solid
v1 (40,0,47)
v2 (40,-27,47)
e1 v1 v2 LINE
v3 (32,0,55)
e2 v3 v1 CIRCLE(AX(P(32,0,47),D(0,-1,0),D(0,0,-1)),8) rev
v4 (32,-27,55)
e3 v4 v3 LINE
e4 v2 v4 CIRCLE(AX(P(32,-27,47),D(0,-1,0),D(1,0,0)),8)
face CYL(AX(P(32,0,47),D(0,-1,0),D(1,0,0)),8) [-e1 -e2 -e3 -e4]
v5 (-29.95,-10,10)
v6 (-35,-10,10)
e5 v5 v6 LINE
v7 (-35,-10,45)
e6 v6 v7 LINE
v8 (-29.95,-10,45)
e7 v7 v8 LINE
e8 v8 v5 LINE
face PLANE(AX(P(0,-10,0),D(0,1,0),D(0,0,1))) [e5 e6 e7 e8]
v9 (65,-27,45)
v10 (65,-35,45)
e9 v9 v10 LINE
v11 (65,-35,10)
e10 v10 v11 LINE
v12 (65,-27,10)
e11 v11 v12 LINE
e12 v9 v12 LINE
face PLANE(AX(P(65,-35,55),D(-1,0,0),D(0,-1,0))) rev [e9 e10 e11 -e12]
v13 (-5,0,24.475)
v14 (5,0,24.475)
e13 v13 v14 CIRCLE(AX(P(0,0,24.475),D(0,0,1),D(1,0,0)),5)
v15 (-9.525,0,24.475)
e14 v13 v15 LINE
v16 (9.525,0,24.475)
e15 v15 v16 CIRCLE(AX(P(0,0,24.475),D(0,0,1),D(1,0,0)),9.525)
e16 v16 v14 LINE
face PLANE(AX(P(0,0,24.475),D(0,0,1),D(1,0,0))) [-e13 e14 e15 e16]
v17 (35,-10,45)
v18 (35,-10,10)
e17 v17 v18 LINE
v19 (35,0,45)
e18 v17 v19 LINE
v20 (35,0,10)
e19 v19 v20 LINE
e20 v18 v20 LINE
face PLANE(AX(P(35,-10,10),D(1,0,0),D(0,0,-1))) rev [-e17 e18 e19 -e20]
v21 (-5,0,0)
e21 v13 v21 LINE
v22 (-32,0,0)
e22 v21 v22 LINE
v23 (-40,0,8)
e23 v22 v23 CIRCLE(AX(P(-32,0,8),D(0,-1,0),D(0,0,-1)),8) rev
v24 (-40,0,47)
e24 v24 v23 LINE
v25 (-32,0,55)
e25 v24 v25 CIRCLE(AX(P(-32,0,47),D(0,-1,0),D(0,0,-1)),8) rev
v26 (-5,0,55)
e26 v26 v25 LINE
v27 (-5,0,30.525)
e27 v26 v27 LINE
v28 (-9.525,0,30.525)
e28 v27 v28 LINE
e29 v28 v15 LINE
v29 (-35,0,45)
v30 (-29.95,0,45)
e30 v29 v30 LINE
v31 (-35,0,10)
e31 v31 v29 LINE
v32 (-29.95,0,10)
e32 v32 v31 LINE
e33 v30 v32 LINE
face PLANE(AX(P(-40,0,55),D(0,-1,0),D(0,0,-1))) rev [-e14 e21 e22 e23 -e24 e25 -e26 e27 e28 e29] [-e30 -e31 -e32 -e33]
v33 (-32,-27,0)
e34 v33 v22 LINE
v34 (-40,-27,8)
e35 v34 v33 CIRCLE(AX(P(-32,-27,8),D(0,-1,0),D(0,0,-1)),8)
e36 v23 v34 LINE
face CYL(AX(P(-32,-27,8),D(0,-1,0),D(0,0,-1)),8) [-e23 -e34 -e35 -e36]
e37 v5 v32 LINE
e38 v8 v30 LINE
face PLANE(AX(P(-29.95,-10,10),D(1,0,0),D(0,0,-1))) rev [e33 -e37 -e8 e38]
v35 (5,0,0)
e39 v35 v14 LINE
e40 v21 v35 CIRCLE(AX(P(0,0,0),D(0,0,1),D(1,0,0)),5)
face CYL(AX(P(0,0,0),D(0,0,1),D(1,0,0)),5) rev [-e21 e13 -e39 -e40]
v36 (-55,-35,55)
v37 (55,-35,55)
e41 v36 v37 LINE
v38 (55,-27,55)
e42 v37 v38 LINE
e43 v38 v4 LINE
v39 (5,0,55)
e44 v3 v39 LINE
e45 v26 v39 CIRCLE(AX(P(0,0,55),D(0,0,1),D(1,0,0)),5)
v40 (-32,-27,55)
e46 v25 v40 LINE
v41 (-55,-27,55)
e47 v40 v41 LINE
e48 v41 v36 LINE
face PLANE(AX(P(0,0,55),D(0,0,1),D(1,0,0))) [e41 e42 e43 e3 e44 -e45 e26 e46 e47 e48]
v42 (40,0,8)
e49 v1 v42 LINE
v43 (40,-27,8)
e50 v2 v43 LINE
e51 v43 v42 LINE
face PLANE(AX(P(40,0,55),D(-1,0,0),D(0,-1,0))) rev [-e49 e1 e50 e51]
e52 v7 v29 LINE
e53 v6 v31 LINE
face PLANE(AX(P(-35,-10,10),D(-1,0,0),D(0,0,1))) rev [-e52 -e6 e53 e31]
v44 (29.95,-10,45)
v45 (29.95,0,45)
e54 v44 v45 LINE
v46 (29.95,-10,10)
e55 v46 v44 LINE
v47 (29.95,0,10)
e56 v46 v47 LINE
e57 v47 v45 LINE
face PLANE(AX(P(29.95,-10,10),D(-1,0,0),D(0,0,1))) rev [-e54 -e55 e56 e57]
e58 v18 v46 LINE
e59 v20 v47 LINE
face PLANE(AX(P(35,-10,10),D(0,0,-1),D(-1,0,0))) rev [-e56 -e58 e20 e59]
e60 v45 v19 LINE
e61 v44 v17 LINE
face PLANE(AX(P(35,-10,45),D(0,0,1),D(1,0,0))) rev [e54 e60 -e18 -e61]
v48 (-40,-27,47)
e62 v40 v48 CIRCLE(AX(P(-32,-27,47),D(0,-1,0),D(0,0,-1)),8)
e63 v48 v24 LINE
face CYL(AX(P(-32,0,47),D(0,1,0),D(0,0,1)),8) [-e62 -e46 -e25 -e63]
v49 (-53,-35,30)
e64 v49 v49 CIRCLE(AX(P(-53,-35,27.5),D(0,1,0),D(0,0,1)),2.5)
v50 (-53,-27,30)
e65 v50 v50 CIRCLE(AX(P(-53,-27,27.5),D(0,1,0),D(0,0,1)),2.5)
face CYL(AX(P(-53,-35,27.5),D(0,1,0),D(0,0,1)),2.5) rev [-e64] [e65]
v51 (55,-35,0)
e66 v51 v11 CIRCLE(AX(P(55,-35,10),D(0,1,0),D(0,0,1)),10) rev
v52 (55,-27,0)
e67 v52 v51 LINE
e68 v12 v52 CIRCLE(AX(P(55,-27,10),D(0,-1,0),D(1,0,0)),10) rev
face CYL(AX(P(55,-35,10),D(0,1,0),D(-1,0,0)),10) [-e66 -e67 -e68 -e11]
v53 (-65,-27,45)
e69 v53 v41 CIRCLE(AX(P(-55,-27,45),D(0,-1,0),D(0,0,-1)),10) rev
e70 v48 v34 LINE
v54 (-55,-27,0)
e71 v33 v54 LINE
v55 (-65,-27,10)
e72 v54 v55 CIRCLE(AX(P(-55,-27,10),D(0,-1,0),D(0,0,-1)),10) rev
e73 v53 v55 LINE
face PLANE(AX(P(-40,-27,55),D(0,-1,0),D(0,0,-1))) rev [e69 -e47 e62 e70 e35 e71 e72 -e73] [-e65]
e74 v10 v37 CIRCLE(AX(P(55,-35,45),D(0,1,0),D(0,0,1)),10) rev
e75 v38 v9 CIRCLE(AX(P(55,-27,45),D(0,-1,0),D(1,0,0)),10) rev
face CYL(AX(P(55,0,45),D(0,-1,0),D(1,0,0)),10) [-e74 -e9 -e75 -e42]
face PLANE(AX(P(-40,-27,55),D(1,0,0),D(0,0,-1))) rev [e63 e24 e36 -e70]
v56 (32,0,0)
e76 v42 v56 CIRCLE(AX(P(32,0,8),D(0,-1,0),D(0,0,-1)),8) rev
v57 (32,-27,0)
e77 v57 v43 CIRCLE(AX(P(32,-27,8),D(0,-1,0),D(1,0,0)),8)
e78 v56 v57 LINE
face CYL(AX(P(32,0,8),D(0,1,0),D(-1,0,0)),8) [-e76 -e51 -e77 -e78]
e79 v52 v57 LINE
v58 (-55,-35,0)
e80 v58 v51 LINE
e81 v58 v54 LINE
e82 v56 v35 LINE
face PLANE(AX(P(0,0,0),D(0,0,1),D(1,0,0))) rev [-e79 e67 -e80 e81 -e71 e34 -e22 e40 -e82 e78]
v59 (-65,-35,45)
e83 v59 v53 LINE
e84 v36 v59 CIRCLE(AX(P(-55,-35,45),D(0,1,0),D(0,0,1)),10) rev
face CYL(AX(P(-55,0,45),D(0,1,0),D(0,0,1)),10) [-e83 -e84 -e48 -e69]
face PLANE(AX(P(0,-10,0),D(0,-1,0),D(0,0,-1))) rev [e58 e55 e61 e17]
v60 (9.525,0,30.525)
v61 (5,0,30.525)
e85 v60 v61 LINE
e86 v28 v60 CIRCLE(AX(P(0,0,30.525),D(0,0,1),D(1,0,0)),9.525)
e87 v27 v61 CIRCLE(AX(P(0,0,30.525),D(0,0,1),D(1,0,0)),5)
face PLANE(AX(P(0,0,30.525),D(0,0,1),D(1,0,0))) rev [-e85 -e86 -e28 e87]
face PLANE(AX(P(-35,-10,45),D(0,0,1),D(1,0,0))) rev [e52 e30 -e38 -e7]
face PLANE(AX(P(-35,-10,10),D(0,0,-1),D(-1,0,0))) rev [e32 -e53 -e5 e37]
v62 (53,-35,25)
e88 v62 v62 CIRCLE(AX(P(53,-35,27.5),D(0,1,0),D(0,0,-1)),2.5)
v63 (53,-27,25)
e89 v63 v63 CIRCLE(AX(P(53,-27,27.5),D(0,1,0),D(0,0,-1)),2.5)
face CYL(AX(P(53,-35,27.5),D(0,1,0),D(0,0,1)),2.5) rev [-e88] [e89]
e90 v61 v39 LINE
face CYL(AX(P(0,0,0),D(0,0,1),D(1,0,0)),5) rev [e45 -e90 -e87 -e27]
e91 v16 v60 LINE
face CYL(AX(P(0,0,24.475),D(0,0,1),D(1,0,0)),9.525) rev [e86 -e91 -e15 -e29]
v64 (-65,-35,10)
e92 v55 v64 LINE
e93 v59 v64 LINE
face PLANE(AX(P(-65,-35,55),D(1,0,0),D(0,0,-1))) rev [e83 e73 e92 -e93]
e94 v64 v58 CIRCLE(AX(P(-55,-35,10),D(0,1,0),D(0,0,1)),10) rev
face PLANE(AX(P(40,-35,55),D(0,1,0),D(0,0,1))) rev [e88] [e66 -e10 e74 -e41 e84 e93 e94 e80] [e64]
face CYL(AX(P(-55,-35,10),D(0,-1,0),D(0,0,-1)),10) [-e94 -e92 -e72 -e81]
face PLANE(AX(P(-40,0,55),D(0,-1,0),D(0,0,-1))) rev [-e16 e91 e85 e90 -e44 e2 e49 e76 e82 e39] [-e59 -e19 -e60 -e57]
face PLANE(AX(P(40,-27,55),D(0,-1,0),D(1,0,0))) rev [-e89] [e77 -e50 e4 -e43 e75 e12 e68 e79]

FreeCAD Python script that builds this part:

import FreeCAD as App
import Part
import Sketcher

V = App.Vector
Q = App.Units.Quantity


def edges_at(feature, points):
    """Names of the edges that pass closest to the given points."""
    edges = feature.Shape.Edges
    near = lambda p: min(range(len(edges)), key=lambda i: edges[i].distToShape(Part.Vertex(*p))[0])
    return sorted({f"Edge{near(p) + 1}" for p in points})

doc = App.newDocument("Part")
body = doc.addObject("PartDesign::Body", "Body")

# Sketch on XY plane
sketch1 = body.newObject("Sketcher::SketchObject", "Sketch")
sketch1.AttachmentSupport = (doc.getObject("XY_Plane"), [""])
sketch1.MapMode = "FlatFace"
sketch1.addGeometry([
    Part.LineSegment(V(40, 0, 0), V(-40, 0, 0)),  # 0
    Part.LineSegment(V(-40, 0, 0), V(-40, -27, 0)),  # 1
    Part.LineSegment(V(-40, -27, 0), V(-65, -27, 0)),  # 2
    Part.LineSegment(V(-65, -27, 0), V(-65, -35, 0)),  # 3
    Part.LineSegment(V(-65, -35, 0), V(65, -35, 0)),  # 4
    Part.LineSegment(V(65, -35, 0), V(65, -27, 0)),  # 5
    Part.LineSegment(V(65, -27, 0), V(40, -27, 0)),  # 6
    Part.LineSegment(V(40, -27, 0), V(40, 0, 0)),  # 7
], False)
sketch1.addConstraint([
    Sketcher.Constraint("Coincident", 0, 2, 1, 1),
    Sketcher.Constraint("Coincident", 1, 2, 2, 1),
    Sketcher.Constraint("Coincident", 2, 2, 3, 1),
    Sketcher.Constraint("Coincident", 3, 2, 4, 1),
    Sketcher.Constraint("Coincident", 4, 2, 5, 1),
    Sketcher.Constraint("Coincident", 5, 2, 6, 1),
    Sketcher.Constraint("Coincident", 6, 2, 7, 1),
    Sketcher.Constraint("Coincident", 7, 2, 0, 1),
    Sketcher.Constraint("Horizontal", 0),
    Sketcher.Constraint("Vertical", 1),
    Sketcher.Constraint("Horizontal", 2),
    Sketcher.Constraint("Vertical", 3),
    Sketcher.Constraint("Horizontal", 4),
    Sketcher.Constraint("Vertical", 5),
    Sketcher.Constraint("Horizontal", 6),
    Sketcher.Constraint("Vertical", 7),
    Sketcher.Constraint("Symmetric", 0, 2, 7, 2, -1, 1),
    Sketcher.Constraint("Symmetric", 2, 2, 5, 2, -2),
    Sketcher.Constraint("DistanceX", 0, 2, 0, 1, Q("80 mm")),
    Sketcher.Constraint("DistanceX", 2, 2, 2, 1, Q("25 mm")),
    Sketcher.Constraint("DistanceY", 1, 2, 1, 1, Q("27 mm")),
    Sketcher.Constraint("DistanceY", 3, 2, 3, 1, Q("8 mm")),
])
pad1 = body.newObject("PartDesign::Pad", "Pad")
pad1.Profile = sketch1
pad1.Length = 55

# Sketch on XY plane
sketch2 = body.newObject("Sketcher::SketchObject", "Sketch001")
sketch2.AttachmentSupport = (doc.getObject("XY_Plane"), [""])
sketch2.MapMode = "FlatFace"
sketch2.AttachmentOffset = App.Placement(V(0, 0, 27.5), App.Rotation())
sketch2.addGeometry(Part.Circle(V(0, 0, 0), V(0, 0, 1), 10), False)
sketch2.addConstraint([
    Sketcher.Constraint("Coincident", 0, 3, -1, 1),
    Sketcher.Constraint("Diameter", 0, Q("19.05 mm")),
])
pocket1 = body.newObject("PartDesign::Pocket", "Pocket")
pocket1.Profile = sketch2
pocket1.Length = 6.05
pocket1.Midplane = True

# Sketch on XZ plane
sketch3 = body.newObject("Sketcher::SketchObject", "Sketch002")
sketch3.AttachmentSupport = (doc.getObject("XZ_Plane"), [""])
sketch3.MapMode = "FlatFace"
sketch3.addGeometry([
    Part.LineSegment(V(-35, 10, 0), V(-35, 45, 0)),  # 0
    Part.LineSegment(V(-35, 45, 0), V(-30, 45, 0)),  # 1
    Part.LineSegment(V(-30, 45, 0), V(-30, 10, 0)),  # 2
    Part.LineSegment(V(-30, 10, 0), V(-35, 10, 0)),  # 3
    Part.LineSegment(V(30, 10, 0), V(30, 45, 0)),  # 4
    Part.LineSegment(V(30, 45, 0), V(35, 45, 0)),  # 5
    Part.LineSegment(V(35, 45, 0), V(35, 10, 0)),  # 6
    Part.LineSegment(V(35, 10, 0), V(30, 10, 0)),  # 7
], False)
sketch3.addConstraint([
    Sketcher.Constraint("Coincident", 0, 2, 1, 1),
    Sketcher.Constraint("Coincident", 1, 2, 2, 1),
    Sketcher.Constraint("Coincident", 2, 2, 3, 1),
    Sketcher.Constraint("Coincident", 3, 2, 0, 1),
    Sketcher.Constraint("Coincident", 4, 2, 5, 1),
    Sketcher.Constraint("Coincident", 5, 2, 6, 1),
    Sketcher.Constraint("Coincident", 6, 2, 7, 1),
    Sketcher.Constraint("Coincident", 7, 2, 4, 1),
    Sketcher.Constraint("Vertical", 0),
    Sketcher.Constraint("Horizontal", 1),
    Sketcher.Constraint("Vertical", 2),
    Sketcher.Constraint("Horizontal", 3),
    Sketcher.Constraint("Vertical", 4),
    Sketcher.Constraint("Horizontal", 5),
    Sketcher.Constraint("Vertical", 6),
    Sketcher.Constraint("Horizontal", 7),
    Sketcher.Constraint("Symmetric", 1, 2, 4, 2, -2),
    Sketcher.Constraint("Symmetric", 3, 2, 6, 2, -2),
    Sketcher.Constraint("DistanceY", 0, 1, 0, 2, Q("35 mm")),
    Sketcher.Constraint("DistanceX", 0, 2, -1, 1, Q("35 mm")),
    Sketcher.Constraint("DistanceY", -1, 1, 0, 2, Q("45 mm")),
    Sketcher.Constraint("DistanceX", 1, 1, 1, 2, Q("5.05 mm")),
])
pocket2 = body.newObject("PartDesign::Pocket", "Pocket001")
pocket2.Profile = sketch3
pocket2.Length = 10
pocket2.Reversed = True

# Sketch on XY plane
sketch4 = body.newObject("Sketcher::SketchObject", "Sketch003")
sketch4.AttachmentSupport = (doc.getObject("XY_Plane"), [""])
sketch4.MapMode = "FlatFace"
sketch4.AttachmentOffset = App.Placement(V(0, 0, 27.5), App.Rotation())
sketch4.addGeometry(Part.Circle(V(0, 0, 0), V(0, 0, 1), 5), False)
sketch4.addConstraint([
    Sketcher.Constraint("Coincident", 0, 3, -1, 1),
    Sketcher.Constraint("Diameter", 0, Q("10 mm")),
])
pocket3 = body.newObject("PartDesign::Pocket", "Pocket002")
pocket3.Profile = sketch4
pocket3.Type = "ThroughAll"
pocket3.Midplane = True
doc.recompute()

fillet = body.newObject("PartDesign::Fillet", "Fillet")
fillet.Base = (pocket3, edges_at(pocket3, [
    (65, -31, 0),
    (-65, -31, 0),
    (65, -31, 55),
    (-65, -31, 55),
]))
fillet.Radius = 10

# Sketch on XZ plane
sketch5 = body.newObject("Sketcher::SketchObject", "Sketch004")
sketch5.AttachmentSupport = (doc.getObject("XZ_Plane"), [""])
sketch5.MapMode = "FlatFace"
sketch5.AttachmentOffset = App.Placement(V(0, 0, 27), App.Rotation())
sketch5.addGeometry([
    Part.Circle(V(-53, 27.5, 0), V(0, 0, 1), 2.5),
    Part.Circle(V(53, 27.5, 0), V(0, 0, 1), 2.5),
], False)
sketch5.addConstraint([
    Sketcher.Constraint("Equal", 0, 1),
    Sketcher.Constraint("Symmetric", 0, 3, 1, 3, -2),
    Sketcher.Constraint("Diameter", 0, Q("5 mm")),
    Sketcher.Constraint("DistanceX", 0, 3, -1, 1, Q("53 mm")),
    Sketcher.Constraint("DistanceY", -1, 1, 0, 3, Q("27.5 mm")),
])
pocket4 = body.newObject("PartDesign::Pocket", "Pocket003")
pocket4.Profile = sketch5
pocket4.Type = "ThroughAll"
pocket4.Reversed = True
doc.recompute()

fillet2 = body.newObject("PartDesign::Fillet", "Fillet001")
fillet2.Base = (pocket4, edges_at(pocket4, [
    (-40, -13.5, 0),
    (40, -13.5, 0),
    (40, -13.5, 55),
    (-40, -13.5, 55),
]))
fillet2.Radius = 8

doc.recompute()
